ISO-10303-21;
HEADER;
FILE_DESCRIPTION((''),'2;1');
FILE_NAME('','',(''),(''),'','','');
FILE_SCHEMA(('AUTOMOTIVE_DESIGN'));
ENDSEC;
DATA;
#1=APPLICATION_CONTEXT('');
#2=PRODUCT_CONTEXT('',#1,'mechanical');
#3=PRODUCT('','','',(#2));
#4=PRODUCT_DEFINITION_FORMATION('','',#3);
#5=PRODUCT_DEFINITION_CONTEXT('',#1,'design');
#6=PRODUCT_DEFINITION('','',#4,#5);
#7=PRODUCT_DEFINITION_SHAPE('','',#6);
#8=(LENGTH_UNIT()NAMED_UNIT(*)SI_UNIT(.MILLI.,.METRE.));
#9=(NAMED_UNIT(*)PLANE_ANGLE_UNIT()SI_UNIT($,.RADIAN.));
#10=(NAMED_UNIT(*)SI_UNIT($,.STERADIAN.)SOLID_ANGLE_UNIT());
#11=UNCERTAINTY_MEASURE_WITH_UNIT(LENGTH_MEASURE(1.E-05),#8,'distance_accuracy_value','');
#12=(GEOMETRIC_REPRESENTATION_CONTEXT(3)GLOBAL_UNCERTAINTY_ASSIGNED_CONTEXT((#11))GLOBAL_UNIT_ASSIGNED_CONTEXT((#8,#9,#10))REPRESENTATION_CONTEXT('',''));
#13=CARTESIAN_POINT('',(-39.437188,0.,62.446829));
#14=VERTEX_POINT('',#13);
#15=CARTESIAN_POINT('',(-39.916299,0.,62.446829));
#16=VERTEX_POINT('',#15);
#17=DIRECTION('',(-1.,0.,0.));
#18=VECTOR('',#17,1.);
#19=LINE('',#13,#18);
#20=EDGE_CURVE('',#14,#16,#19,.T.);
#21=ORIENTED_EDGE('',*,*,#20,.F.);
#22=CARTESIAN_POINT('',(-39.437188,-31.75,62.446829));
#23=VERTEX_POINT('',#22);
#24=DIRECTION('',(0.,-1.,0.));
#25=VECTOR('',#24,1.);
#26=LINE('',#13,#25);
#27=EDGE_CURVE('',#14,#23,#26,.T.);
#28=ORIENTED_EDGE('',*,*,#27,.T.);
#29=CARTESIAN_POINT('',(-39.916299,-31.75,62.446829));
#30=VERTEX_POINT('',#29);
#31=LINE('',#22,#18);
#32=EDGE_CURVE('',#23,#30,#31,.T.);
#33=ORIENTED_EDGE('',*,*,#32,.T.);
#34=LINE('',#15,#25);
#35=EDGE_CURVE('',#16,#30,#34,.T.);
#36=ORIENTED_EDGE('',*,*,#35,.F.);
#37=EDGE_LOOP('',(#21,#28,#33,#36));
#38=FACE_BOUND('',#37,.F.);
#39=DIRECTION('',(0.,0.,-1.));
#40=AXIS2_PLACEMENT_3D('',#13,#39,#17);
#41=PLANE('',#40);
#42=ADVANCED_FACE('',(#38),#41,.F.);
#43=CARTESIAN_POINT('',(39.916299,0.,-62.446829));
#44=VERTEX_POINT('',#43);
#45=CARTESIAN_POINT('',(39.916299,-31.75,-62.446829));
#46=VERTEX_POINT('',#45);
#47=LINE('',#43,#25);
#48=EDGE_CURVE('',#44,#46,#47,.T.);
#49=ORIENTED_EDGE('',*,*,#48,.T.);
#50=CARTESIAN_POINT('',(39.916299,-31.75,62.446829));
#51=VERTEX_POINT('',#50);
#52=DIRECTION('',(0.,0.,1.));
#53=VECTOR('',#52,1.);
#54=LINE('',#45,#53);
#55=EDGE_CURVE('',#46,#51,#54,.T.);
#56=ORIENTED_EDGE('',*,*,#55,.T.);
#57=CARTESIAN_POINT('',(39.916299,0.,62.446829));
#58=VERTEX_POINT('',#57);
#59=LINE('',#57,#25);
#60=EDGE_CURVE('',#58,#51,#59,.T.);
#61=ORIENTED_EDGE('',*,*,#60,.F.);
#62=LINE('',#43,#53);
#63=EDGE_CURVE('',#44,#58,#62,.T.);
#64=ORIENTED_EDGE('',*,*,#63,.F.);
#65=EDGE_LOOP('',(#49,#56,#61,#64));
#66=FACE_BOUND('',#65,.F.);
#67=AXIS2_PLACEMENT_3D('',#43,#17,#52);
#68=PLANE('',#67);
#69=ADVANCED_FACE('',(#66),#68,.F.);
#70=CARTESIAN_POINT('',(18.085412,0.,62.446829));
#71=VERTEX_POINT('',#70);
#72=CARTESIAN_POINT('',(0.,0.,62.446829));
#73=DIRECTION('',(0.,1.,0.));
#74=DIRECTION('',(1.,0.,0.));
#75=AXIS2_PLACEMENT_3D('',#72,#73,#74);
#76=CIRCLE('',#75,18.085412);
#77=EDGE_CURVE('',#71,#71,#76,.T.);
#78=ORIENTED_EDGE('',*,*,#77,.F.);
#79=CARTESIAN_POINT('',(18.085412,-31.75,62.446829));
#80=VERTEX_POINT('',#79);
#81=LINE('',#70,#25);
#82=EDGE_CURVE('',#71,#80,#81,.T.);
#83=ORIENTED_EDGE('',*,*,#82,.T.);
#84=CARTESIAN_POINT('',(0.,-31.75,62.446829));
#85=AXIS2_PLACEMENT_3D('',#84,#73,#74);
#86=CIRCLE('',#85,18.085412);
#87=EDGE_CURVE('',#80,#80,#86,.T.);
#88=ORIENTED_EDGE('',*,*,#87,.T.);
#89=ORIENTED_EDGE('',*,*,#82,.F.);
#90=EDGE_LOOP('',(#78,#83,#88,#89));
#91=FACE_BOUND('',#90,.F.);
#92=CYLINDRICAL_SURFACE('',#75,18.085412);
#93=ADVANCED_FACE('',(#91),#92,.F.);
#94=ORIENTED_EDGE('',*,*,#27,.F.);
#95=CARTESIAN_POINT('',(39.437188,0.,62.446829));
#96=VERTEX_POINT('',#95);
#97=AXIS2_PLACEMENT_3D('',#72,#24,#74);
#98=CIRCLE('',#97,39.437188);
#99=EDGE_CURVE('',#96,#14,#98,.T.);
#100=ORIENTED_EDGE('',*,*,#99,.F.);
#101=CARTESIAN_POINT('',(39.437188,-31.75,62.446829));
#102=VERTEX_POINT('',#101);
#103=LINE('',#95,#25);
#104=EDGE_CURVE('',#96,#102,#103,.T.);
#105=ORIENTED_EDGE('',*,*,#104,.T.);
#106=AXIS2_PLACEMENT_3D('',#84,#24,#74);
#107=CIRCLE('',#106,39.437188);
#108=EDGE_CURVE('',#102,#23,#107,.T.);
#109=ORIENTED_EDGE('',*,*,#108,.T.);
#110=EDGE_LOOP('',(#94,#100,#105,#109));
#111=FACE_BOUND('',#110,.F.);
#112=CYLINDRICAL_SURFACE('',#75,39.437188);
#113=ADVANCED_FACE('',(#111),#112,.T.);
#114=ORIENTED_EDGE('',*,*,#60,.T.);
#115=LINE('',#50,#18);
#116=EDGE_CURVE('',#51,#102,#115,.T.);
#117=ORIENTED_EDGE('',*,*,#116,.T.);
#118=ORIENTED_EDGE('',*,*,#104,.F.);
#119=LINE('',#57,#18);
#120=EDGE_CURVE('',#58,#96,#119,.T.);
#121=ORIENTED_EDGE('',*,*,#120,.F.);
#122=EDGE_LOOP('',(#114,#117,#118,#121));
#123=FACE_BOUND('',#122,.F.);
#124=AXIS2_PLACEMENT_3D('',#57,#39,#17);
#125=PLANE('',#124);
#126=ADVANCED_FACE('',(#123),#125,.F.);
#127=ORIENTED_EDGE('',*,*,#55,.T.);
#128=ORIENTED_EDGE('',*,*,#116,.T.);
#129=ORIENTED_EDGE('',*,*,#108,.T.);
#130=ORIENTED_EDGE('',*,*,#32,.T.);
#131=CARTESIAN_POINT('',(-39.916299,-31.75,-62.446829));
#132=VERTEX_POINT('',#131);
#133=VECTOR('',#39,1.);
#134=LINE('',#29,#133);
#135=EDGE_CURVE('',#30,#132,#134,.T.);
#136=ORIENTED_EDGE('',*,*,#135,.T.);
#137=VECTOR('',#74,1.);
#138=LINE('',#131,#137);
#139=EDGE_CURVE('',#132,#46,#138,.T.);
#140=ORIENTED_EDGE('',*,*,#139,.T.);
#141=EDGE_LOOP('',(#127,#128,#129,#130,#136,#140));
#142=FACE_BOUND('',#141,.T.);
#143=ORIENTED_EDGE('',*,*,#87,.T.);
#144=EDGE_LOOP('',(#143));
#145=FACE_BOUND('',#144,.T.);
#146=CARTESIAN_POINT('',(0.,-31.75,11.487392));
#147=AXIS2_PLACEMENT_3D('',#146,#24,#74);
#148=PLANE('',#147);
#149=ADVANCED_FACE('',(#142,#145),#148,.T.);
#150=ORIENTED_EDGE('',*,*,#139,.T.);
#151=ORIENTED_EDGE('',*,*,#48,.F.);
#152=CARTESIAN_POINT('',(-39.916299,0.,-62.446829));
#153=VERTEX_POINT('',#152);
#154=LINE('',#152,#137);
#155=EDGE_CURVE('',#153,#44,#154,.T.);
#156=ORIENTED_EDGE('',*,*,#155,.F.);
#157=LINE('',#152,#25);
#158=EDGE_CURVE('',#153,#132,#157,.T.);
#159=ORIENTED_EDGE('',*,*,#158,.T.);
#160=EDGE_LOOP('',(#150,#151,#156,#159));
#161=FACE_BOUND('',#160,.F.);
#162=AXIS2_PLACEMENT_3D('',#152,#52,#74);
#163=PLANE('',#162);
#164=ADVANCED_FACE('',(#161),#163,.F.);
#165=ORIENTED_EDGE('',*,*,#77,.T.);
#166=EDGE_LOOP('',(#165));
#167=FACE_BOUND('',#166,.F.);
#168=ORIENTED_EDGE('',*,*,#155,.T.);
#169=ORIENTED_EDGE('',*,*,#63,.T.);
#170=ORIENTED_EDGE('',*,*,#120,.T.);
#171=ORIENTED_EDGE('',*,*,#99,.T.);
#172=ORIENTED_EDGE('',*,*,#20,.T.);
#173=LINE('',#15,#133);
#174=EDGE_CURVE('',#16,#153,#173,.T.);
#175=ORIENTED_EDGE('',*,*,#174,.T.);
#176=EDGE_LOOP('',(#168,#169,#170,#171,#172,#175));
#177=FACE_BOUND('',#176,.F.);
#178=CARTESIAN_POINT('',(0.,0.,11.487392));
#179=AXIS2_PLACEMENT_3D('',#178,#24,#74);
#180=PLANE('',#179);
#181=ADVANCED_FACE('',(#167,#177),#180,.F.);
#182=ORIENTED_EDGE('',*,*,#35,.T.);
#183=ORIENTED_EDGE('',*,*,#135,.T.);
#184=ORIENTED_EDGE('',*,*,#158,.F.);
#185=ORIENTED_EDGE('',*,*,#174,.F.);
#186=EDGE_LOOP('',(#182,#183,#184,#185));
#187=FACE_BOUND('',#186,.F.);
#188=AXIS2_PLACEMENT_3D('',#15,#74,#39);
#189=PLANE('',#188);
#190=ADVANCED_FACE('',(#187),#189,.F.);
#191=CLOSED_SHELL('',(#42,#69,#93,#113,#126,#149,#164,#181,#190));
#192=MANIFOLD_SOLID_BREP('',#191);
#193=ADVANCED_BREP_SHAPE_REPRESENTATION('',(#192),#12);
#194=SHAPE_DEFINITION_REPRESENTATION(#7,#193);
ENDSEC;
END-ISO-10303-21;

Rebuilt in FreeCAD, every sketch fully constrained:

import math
import FreeCAD as App
import Part
import Sketcher
from FreeCAD import Vector
Q = App.Units.Quantity

doc = App.newDocument("Part")
body = doc.addObject("PartDesign::Body", "Body")

# Sketch on XZ plane
sketch1 = body.newObject("Sketcher::SketchObject", "Sketch")
sketch1.AttachmentSupport = (doc.getObject("XZ_Plane"), [""])
sketch1.MapMode = "FlatFace"
sketch1.addGeometry(Part.LineSegment(Vector(-39.44, 62.45, 0), Vector(-39.92, 62.45, 0)), False)
sketch1.addGeometry(Part.LineSegment(Vector(-39.92, 62.45, 0), Vector(-39.92, -62.45, 0)), False)
sketch1.addGeometry(Part.LineSegment(Vector(-39.92, -62.45, 0), Vector(39.92, -62.45, 0)), False)
sketch1.addGeometry(Part.LineSegment(Vector(39.92, -62.45, 0), Vector(39.92, 62.45, 0)), False)
sketch1.addGeometry(Part.LineSegment(Vector(39.92, 62.45, 0), Vector(39.44, 62.45, 0)), False)
sketch1.addGeometry(Part.ArcOfCircle(Part.Circle(Vector(0, 62.45, 0), Vector(0, 0, 1), 39.44), math.radians(0), math.radians(180)), False)
sketch1.addGeometry(Part.Circle(Vector(0, 62.45, 0), Vector(0, 0, 1), 18.09), False)
sketch1.addConstraint(Sketcher.Constraint("Coincident", 0, 2, 1, 1))
sketch1.addConstraint(Sketcher.Constraint("Coincident", 1, 2, 2, 1))
sketch1.addConstraint(Sketcher.Constraint("Coincident", 2, 2, 3, 1))
sketch1.addConstraint(Sketcher.Constraint("Coincident", 3, 2, 4, 1))
sketch1.addConstraint(Sketcher.Constraint("Coincident", 4, 2, 5, 1))
sketch1.addConstraint(Sketcher.Constraint("Coincident", 5, 2, 0, 1))
sketch1.addConstraint(Sketcher.Constraint("Horizontal", 0))
sketch1.addConstraint(Sketcher.Constraint("Vertical", 1))
sketch1.addConstraint(Sketcher.Constraint("Horizontal", 2))
sketch1.addConstraint(Sketcher.Constraint("Vertical", 3))
sketch1.addConstraint(Sketcher.Constraint("Horizontal", 4))
sketch1.addConstraint(Sketcher.Constraint("Coincident", 6, 3, 5, 3))
sketch1.addConstraint(Sketcher.Constraint("Symmetric", 0, 2, 2, 2, -1, 1))
sketch1.addConstraint(Sketcher.Constraint("Symmetric", 4, 2, 5, 2, -2))
sketch1.addConstraint(Sketcher.Constraint("Horizontal", 6, 3, 0, 2))
sketch1.addConstraint(Sketcher.Constraint("Diameter", 6, 36.170824))
sketch1.addConstraint(Sketcher.Constraint("DistanceX", 2, 1, 2, 2, 79.832598))
sketch1.addConstraint(Sketcher.Constraint("Radius", 5, 39.437188))
sketch1.addConstraint(Sketcher.Constraint("DistanceY", 1, 2, 1, 1, 124.893658))
pad1 = body.newObject("PartDesign::Pad", "Pad")
pad1.Profile = sketch1
pad1.Length = Q("1.25 in")

doc.recompute()
